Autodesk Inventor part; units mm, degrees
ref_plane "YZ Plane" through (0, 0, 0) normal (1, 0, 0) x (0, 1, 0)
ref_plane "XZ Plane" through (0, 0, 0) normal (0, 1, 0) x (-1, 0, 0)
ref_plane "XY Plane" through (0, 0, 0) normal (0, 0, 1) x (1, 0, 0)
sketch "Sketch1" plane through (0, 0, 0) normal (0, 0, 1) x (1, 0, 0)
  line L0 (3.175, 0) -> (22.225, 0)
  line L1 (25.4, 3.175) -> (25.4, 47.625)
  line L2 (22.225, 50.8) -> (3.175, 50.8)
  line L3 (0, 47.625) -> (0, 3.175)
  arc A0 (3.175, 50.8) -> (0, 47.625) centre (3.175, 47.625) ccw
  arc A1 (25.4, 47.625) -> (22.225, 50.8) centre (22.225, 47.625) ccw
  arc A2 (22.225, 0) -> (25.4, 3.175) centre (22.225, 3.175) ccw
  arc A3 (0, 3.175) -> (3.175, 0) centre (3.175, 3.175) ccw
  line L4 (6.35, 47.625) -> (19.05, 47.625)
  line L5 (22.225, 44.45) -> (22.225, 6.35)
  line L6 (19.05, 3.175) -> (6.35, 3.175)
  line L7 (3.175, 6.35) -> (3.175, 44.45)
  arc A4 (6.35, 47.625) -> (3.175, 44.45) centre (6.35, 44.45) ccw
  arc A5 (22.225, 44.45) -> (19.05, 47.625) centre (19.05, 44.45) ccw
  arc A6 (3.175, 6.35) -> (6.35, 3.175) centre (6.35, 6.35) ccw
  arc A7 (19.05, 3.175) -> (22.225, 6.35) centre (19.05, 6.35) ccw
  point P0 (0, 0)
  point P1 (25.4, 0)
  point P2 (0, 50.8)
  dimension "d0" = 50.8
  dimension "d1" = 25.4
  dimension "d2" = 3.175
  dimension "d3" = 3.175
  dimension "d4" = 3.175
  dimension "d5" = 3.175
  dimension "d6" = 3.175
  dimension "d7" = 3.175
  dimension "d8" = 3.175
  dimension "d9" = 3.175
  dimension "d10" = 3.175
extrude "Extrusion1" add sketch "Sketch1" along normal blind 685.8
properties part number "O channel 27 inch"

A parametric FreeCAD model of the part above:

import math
import FreeCAD as App
import Part
import Sketcher
from FreeCAD import Vector
Q = App.Units.Quantity

doc = App.newDocument("Part")
params = doc.addObject("Spreadsheet::Sheet", "Params")
for row, (alias, value) in enumerate([
    ("sketch1_radius", "0.125 in"),
    ("pad1_length", "27 in"),
], start=1):
    params.set(f"A{row}", alias)
    params.set(f"B{row}", "=" + value)
    params.setAlias(f"B{row}", alias)

body = doc.addObject("PartDesign::Body", "Body")

# Sketch on XY plane
sketch1 = body.newObject("Sketcher::SketchObject", "Sketch")
sketch1.AttachmentSupport = (doc.getObject("XY_Plane"), [""])
sketch1.MapMode = "FlatFace"
sketch1.addGeometry(Part.ArcOfCircle(Part.Circle(Vector(3.175, 3.175, 0), Vector(0, 0, 1), 3.175), math.radians(180), math.radians(270)), False)
sketch1.addGeometry(Part.LineSegment(Vector(3.175, 0, 0), Vector(22.225, 0, 0)), False)
sketch1.addGeometry(Part.ArcOfCircle(Part.Circle(Vector(22.225, 3.175, 0), Vector(0, 0, 1), 3.175), math.radians(-90), math.radians(0)), False)
sketch1.addGeometry(Part.LineSegment(Vector(25.4, 3.175, 0), Vector(25.4, 47.625, 0)), False)
sketch1.addGeometry(Part.ArcOfCircle(Part.Circle(Vector(22.225, 47.625, 0), Vector(0, 0, 1), 3.175), math.radians(0), math.radians(90)), False)
sketch1.addGeometry(Part.LineSegment(Vector(22.225, 50.8, 0), Vector(3.175, 50.8, 0)), False)
sketch1.addGeometry(Part.ArcOfCircle(Part.Circle(Vector(3.175, 47.625, 0), Vector(0, 0, 1), 3.175), math.radians(90), math.radians(180)), False)
sketch1.addGeometry(Part.LineSegment(Vector(0, 47.625, 0), Vector(0, 3.175, 0)), False)
sketch1.addGeometry(Part.ArcOfCircle(Part.Circle(Vector(6.35, 44.45, 0), Vector(0, 0, 1), 3.175), math.radians(90), math.radians(180)), False)
sketch1.addGeometry(Part.LineSegment(Vector(6.35, 47.625, 0), Vector(19.05, 47.625, 0)), False)
sketch1.addGeometry(Part.ArcOfCircle(Part.Circle(Vector(19.05, 44.45, 0), Vector(0, 0, 1), 3.175), math.radians(0), math.radians(90)), False)
sketch1.addGeometry(Part.LineSegment(Vector(22.225, 44.45, 0), Vector(22.225, 6.35, 0)), False)
sketch1.addGeometry(Part.ArcOfCircle(Part.Circle(Vector(19.05, 6.35, 0), Vector(0, 0, 1), 3.175), math.radians(-90), math.radians(0)), False)
sketch1.addGeometry(Part.LineSegment(Vector(19.05, 3.175, 0), Vector(6.35, 3.175, 0)), False)
sketch1.addGeometry(Part.ArcOfCircle(Part.Circle(Vector(6.35, 6.35, 0), Vector(0, 0, 1), 3.175), math.radians(180), math.radians(270)), False)
sketch1.addGeometry(Part.LineSegment(Vector(3.175, 6.35, 0), Vector(3.175, 44.45, 0)), False)
sketch1.addConstraint(Sketcher.Constraint("Tangent", 0, 2, 1, 1))
sketch1.addConstraint(Sketcher.Constraint("Tangent", 1, 2, 2, 1))
sketch1.addConstraint(Sketcher.Constraint("Tangent", 2, 2, 3, 1))
sketch1.addConstraint(Sketcher.Constraint("Tangent", 3, 2, 4, 1))
sketch1.addConstraint(Sketcher.Constraint("Tangent", 4, 2, 5, 1))
sketch1.addConstraint(Sketcher.Constraint("Tangent", 5, 2, 6, 1))
sketch1.addConstraint(Sketcher.Constraint("Tangent", 6, 2, 7, 1))
sketch1.addConstraint(Sketcher.Constraint("Tangent", 7, 2, 0, 1))
sketch1.addConstraint(Sketcher.Constraint("Tangent", 8, 1, 9, 1))
sketch1.addConstraint(Sketcher.Constraint("Tangent", 9, 2, 10, 2))
sketch1.addConstraint(Sketcher.Constraint("Tangent", 10, 1, 11, 1))
sketch1.addConstraint(Sketcher.Constraint("Tangent", 11, 2, 12, 2))
sketch1.addConstraint(Sketcher.Constraint("Tangent", 12, 1, 13, 1))
sketch1.addConstraint(Sketcher.Constraint("Tangent", 13, 2, 14, 2))
sketch1.addConstraint(Sketcher.Constraint("Tangent", 14, 1, 15, 1))
sketch1.addConstraint(Sketcher.Constraint("Tangent", 15, 2, 8, 2))
sketch1.addConstraint(Sketcher.Constraint("Horizontal", 1))
sketch1.addConstraint(Sketcher.Constraint("Vertical", 3))
sketch1.addConstraint(Sketcher.Constraint("Horizontal", 5))
sketch1.addConstraint(Sketcher.Constraint("Vertical", 7))
sketch1.addConstraint(Sketcher.Constraint("Horizontal", 9))
sketch1.addConstraint(Sketcher.Constraint("Vertical", 11))
sketch1.addConstraint(Sketcher.Constraint("Horizontal", 13))
sketch1.addConstraint(Sketcher.Constraint("Vertical", 15))
sketch1.addConstraint(Sketcher.Constraint("Equal", 0, 2))
sketch1.addConstraint(Sketcher.Constraint("Equal", 2, 4))
sketch1.addConstraint(Sketcher.Constraint("Equal", 4, 6))
sketch1.addConstraint(Sketcher.Constraint("Equal", 6, 8))
sketch1.addConstraint(Sketcher.Constraint("Equal", 8, 10))
sketch1.addConstraint(Sketcher.Constraint("Equal", 10, 12))
sketch1.addConstraint(Sketcher.Constraint("Equal", 12, 14))
sketch1.addConstraint(Sketcher.Constraint("PointOnObject", 0, 2, -1))
sketch1.addConstraint(Sketcher.Constraint("PointOnObject", 6, 2, -2))
sketch1.addConstraint(Sketcher.Constraint("Horizontal", 6, 2, 8, 1))
sketch1.addConstraint(Sketcher.Constraint("Horizontal", 7, 2, 12, 1))
sketch1.addConstraint(Sketcher.Constraint("Vertical", 4, 2, 10, 1))
sketch1.addConstraint(Sketcher.Constraint("Vertical", 5, 2, 14, 1))
sketch1.addConstraint(Sketcher.Constraint("DistanceX", -1, 1, 2, 2, Q("1 in")))
sketch1.addConstraint(Sketcher.Constraint("DistanceY", -1, 1, 4, 2, Q("2 in")))
sketch1.addConstraint(Sketcher.Constraint("Radius", 0, Q("0.125 in")))
sketch1.setExpression("Constraints[39]", "Params.sketch1_radius")
pad1 = body.newObject("PartDesign::Pad", "Pad")
pad1.Profile = sketch1
pad1.setExpression("Length", "Params.pad1_length")

doc.recompute()
